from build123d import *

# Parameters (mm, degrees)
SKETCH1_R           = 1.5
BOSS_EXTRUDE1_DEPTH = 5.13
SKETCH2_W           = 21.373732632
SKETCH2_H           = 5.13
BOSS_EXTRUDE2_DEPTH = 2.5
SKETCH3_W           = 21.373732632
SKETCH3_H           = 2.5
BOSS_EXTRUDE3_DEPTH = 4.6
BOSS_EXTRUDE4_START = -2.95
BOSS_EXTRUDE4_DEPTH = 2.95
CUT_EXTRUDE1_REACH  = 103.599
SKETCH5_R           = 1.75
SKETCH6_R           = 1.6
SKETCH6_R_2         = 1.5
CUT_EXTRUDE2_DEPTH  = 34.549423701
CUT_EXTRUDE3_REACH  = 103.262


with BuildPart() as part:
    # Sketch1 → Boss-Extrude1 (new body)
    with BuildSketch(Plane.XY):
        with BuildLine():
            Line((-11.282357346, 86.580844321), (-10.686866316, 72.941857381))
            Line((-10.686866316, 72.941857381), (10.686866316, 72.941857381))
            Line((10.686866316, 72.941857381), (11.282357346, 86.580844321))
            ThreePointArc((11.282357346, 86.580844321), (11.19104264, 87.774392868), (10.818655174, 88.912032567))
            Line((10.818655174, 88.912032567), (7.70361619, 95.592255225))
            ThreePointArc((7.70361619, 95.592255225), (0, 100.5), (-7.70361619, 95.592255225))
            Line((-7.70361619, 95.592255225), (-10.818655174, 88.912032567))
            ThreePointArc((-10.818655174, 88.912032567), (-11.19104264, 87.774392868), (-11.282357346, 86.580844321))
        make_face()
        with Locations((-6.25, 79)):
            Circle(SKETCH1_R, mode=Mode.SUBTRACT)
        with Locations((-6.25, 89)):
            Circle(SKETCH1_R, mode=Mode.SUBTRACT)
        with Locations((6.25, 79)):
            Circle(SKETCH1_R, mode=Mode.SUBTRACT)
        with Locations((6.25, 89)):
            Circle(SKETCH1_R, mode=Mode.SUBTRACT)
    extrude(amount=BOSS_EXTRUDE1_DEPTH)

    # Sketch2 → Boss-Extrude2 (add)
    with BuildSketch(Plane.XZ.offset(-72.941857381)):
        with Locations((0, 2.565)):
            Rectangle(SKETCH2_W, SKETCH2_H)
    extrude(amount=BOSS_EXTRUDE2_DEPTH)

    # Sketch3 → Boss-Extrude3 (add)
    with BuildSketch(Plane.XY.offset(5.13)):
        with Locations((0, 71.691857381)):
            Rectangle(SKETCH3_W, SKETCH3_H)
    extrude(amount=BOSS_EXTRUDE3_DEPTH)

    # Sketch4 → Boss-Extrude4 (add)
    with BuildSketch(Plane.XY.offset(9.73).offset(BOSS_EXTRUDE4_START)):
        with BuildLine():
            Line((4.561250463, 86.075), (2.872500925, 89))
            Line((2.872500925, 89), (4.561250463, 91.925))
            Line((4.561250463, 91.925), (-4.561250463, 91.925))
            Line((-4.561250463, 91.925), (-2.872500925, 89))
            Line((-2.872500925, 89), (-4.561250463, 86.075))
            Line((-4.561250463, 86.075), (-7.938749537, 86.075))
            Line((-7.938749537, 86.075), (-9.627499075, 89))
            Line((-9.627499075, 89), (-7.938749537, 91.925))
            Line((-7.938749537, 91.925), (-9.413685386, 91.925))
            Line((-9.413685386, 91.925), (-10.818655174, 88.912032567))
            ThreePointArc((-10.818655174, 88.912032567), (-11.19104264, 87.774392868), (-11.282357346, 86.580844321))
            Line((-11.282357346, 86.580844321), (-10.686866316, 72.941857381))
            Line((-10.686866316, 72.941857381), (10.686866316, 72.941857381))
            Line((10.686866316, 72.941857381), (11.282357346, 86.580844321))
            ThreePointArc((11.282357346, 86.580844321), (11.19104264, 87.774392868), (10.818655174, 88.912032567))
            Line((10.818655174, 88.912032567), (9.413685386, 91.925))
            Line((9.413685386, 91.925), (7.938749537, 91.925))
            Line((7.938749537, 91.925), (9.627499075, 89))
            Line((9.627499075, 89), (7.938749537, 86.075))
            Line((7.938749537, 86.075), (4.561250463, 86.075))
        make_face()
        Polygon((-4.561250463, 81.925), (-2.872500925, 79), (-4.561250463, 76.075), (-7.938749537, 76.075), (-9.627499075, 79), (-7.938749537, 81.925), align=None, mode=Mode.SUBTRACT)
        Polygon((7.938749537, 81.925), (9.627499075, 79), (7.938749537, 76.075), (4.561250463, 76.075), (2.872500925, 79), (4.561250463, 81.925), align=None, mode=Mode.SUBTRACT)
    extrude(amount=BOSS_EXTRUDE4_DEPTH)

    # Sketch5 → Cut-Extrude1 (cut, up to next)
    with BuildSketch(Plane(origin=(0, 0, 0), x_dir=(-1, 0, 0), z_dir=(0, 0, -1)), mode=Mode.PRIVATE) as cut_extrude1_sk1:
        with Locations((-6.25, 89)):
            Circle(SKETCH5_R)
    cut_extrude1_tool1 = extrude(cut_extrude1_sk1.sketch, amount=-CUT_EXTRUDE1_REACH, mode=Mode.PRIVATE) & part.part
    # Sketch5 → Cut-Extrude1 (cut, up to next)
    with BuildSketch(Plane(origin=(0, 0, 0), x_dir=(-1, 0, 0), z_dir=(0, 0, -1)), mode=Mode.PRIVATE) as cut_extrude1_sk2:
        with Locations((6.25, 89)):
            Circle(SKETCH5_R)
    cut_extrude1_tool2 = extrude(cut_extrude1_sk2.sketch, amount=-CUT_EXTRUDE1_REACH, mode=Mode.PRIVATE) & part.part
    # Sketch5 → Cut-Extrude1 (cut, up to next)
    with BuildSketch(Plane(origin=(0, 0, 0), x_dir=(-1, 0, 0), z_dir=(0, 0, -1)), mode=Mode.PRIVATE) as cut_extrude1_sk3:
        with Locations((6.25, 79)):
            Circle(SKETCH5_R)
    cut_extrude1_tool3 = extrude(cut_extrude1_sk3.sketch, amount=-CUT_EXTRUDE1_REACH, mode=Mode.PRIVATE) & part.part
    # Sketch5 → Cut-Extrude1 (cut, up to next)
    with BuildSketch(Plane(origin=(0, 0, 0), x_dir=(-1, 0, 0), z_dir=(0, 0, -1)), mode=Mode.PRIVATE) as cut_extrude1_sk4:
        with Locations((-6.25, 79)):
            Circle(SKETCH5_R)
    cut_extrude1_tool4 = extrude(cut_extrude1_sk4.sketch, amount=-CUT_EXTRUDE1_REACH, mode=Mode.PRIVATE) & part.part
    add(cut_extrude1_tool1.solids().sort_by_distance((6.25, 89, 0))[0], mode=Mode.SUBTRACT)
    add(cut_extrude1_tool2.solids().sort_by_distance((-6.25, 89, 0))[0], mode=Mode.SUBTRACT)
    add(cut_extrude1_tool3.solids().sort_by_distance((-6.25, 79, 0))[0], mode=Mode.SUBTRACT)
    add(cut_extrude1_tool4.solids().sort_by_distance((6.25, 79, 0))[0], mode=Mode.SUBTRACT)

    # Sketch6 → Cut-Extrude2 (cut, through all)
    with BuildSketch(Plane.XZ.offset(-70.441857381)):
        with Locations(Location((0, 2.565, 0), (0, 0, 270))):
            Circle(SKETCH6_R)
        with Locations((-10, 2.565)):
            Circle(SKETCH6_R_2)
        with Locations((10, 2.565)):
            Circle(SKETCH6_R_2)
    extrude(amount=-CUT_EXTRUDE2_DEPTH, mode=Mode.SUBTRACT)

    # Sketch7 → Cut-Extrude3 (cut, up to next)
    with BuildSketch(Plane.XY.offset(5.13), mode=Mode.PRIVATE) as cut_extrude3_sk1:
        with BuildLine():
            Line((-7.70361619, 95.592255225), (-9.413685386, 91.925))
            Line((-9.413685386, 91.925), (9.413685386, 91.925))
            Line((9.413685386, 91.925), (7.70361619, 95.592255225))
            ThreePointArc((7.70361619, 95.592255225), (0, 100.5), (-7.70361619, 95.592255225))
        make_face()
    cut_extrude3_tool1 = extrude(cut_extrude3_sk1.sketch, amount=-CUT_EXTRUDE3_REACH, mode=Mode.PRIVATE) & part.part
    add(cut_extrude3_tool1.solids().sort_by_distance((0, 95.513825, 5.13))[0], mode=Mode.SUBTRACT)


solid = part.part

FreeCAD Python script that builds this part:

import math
import FreeCAD as App
import Part
import Sketcher
from FreeCAD import Vector
Q = App.Units.Quantity


def add_polygon(sketch, points):
    """Adds a closed chain of lines whose ends are joined by coincident constraints."""
    first, n = sketch.GeometryCount, len(points)
    for a, b in zip(points, points[1:] + points[:1]):
        sketch.addGeometry(Part.LineSegment(App.Vector(*a, 0), App.Vector(*b, 0)), False)
    for i in range(n):
        sketch.addConstraint(Sketcher.Constraint("Coincident", first + i, 2, first + (i + 1) % n, 1))

doc = App.newDocument("Part")
body = doc.addObject("PartDesign::Body", "Body")

# Sketch on XY plane
sketch1 = body.newObject("Sketcher::SketchObject", "Sketch")
sketch1.AttachmentSupport = (doc.getObject("XY_Plane"), [""])
sketch1.MapMode = "FlatFace"
sketch1.addGeometry([
    Part.LineSegment(Vector(-11.282357, 86.580844, 0), Vector(-10.686866, 72.941857, 0)),  # 0
    Part.LineSegment(Vector(-10.686866, 72.941857, 0), Vector(10.686866, 72.941857, 0)),  # 1
    Part.LineSegment(Vector(10.686866, 72.941857, 0), Vector(11.282357, 86.580844, 0)),  # 2
    Part.ArcOfCircle(Part.Circle(Vector(6.287116, 86.798941, 0), Vector(0, 0, 1), 5), math.radians(-2.5), math.radians(25)),  # 3
    Part.LineSegment(Vector(10.818655, 88.912033, 0), Vector(7.703616, 95.592255, 0)),  # 4
    Part.ArcOfCircle(Part.Circle(Vector(0, 92, 0), Vector(0, 0, 1), 8.5), math.radians(25), math.radians(155)),  # 5
    Part.LineSegment(Vector(-7.703616, 95.592255, 0), Vector(-10.818655, 88.912033, 0)),  # 6
    Part.ArcOfCircle(Part.Circle(Vector(-6.287116, 86.798941, 0), Vector(0, 0, 1), 5), math.radians(155), math.radians(182.5)),  # 7
    Part.Circle(Vector(-6.25, 79, 0), Vector(0, 0, 1), 1.5),  # 8
    Part.Circle(Vector(6.25, 79, 0), Vector(0, 0, 1), 1.5),  # 9
    Part.Circle(Vector(-6.25, 89, 0), Vector(0, 0, 1), 1.5),  # 10
    Part.Circle(Vector(6.25, 89, 0), Vector(0, 0, 1), 1.5),  # 11
], False)
sketch1.addConstraint([
    Sketcher.Constraint("Coincident", 0, 2, 1, 1),
    Sketcher.Constraint("Coincident", 1, 2, 2, 1),
    Sketcher.Constraint("Tangent", 2, 2, 3, 1),
    Sketcher.Constraint("Tangent", 3, 2, 4, 1),
    Sketcher.Constraint("Tangent", 4, 2, 5, 1),
    Sketcher.Constraint("Tangent", 5, 2, 6, 1),
    Sketcher.Constraint("Tangent", 6, 2, 7, 1),
    Sketcher.Constraint("Tangent", 7, 2, 0, 1),
    Sketcher.Constraint("Horizontal", 1),
    Sketcher.Constraint("Equal", 3, 7),
    Sketcher.Constraint("Equal", 8, 9),
    Sketcher.Constraint("Equal", 9, 10),
    Sketcher.Constraint("Equal", 10, 11),
    Sketcher.Constraint("Symmetric", 3, 3, 7, 3, -2),
    Sketcher.Constraint("Symmetric", 8, 3, 9, 3, -2),
    Sketcher.Constraint("Symmetric", 10, 3, 11, 3, -2),
    Sketcher.Constraint("PointOnObject", 5, 3, -2),
    Sketcher.Constraint("Horizontal", 2, 2, 7, 2),
    Sketcher.Constraint("Vertical", 8, 3, 10, 3),
    Sketcher.Constraint("Diameter", 8, 3.0),
    Sketcher.Constraint("Radius", 3, 5.0),
    Sketcher.Constraint("Radius", 5, 8.5),
    Sketcher.Constraint("Angle", 4, Q("115 deg")),
    Sketcher.Constraint("DistanceY", -1, 1, 5, 3, 92.0),
    Sketcher.Constraint("DistanceY", -1, 1, 8, 3, 79.0),
    Sketcher.Constraint("DistanceY", -1, 1, 10, 3, 89.0),
    Sketcher.Constraint("Angle", 0, Q("-87.5 deg")),
    Sketcher.Constraint("DistanceX", 8, 3, 9, 3, 12.5),
    Sketcher.Constraint("DistanceX", 3, 3, 4, 2, 1.4165),
    Sketcher.Constraint("Distance", 0, 13.651981),
])
pad1 = body.newObject("PartDesign::Pad", "Pad")
pad1.Profile = sketch1
pad1.Length = 5.13

# Sketch on XZ plane
sketch2 = body.newObject("Sketcher::SketchObject", "Sketch001")
sketch2.AttachmentSupport = (doc.getObject("XZ_Plane"), [""])
sketch2.MapMode = "FlatFace"
sketch2.AttachmentOffset = App.Placement(Vector(0, 0, -72.941857), App.Rotation())
add_polygon(sketch2, [(-10.686866, 5.13), (-10.686866, 0), (10.686866, 0), (10.686866, 5.13)])  # lines 0-3
sketch2.addConstraint([
    Sketcher.Constraint("Vertical", 0),
    Sketcher.Constraint("Horizontal", 1),
    Sketcher.Constraint("Vertical", 2),
    Sketcher.Constraint("Horizontal", 3),
    Sketcher.Constraint("Symmetric", 0, 2, 1, 2, -1, 1),
    Sketcher.Constraint("DistanceY", 0, 2, 0, 1, 5.13),
    Sketcher.Constraint("DistanceX", 1, 1, 1, 2, 21.373733),
])
pad2 = body.newObject("PartDesign::Pad", "Pad001")
pad2.Profile = sketch2
pad2.Length = 2.5

# Sketch on XY plane
sketch3 = body.newObject("Sketcher::SketchObject", "Sketch002")
sketch3.AttachmentSupport = (doc.getObject("XY_Plane"), [""])
sketch3.MapMode = "FlatFace"
sketch3.AttachmentOffset = App.Placement(Vector(0, 0, 5.13), App.Rotation())
add_polygon(sketch3, [(-10.686866, 72.941857), (-10.686866, 70.441857), (10.686866, 70.441857), (10.686866, 72.941857)])  # lines 0-3
sketch3.addConstraint([
    Sketcher.Constraint("Vertical", 0),
    Sketcher.Constraint("Horizontal", 1),
    Sketcher.Constraint("Vertical", 2),
    Sketcher.Constraint("Horizontal", 3),
    Sketcher.Constraint("DistanceY", 0, 2, 0, 1, 2.5),
    Sketcher.Constraint("DistanceX", 1, 1, 1, 2, 21.373733),
    Sketcher.Constraint("DistanceX", 0, 2, -1, 1, 10.686866),
    Sketcher.Constraint("DistanceY", -1, 1, 0, 2, 70.441857),
])
pad3 = body.newObject("PartDesign::Pad", "Pad002")
pad3.Profile = sketch3
pad3.Length = 4.6

# Sketch on XY plane
sketch4 = body.newObject("Sketcher::SketchObject", "Sketch003")
sketch4.AttachmentSupport = (doc.getObject("XY_Plane"), [""])
sketch4.MapMode = "FlatFace"
sketch4.AttachmentOffset = App.Placement(Vector(0, 0, 6.78), App.Rotation())
sketch4.addGeometry(Part.LineSegment(Vector(4.56125, 86.075, 0), Vector(2.872501, 89, 0)), False)  # 0
sketch4.addGeometry(Part.LineSegment(Vector(2.872501, 89, 0), Vector(4.56125, 91.925, 0)), False)  # 1
sketch4.addGeometry(Part.LineSegment(Vector(4.56125, 91.925, 0), Vector(-4.56125, 91.925, 0)), False)  # 2
sketch4.addGeometry(Part.LineSegment(Vector(-4.56125, 91.925, 0), Vector(-2.872501, 89, 0)), False)  # 3
sketch4.addGeometry(Part.LineSegment(Vector(-2.872501, 89, 0), Vector(-4.56125, 86.075, 0)), False)  # 4
sketch4.addGeometry(Part.LineSegment(Vector(-4.56125, 86.075, 0), Vector(-7.93875, 86.075, 0)), False)  # 5
sketch4.addGeometry(Part.LineSegment(Vector(-7.93875, 86.075, 0), Vector(-9.627499, 89, 0)), False)  # 6
sketch4.addGeometry(Part.LineSegment(Vector(-9.627499, 89, 0), Vector(-7.93875, 91.925, 0)), False)  # 7
sketch4.addGeometry(Part.LineSegment(Vector(-7.93875, 91.925, 0), Vector(-9.413685, 91.925, 0)), False)  # 8
sketch4.addGeometry(Part.LineSegment(Vector(-9.413685, 91.925, 0), Vector(-10.818655, 88.912033, 0)), False)  # 9
sketch4.addGeometry(Part.ArcOfCircle(Part.Circle(Vector(-6.287116, 86.798941, 0), Vector(0, 0, 1), 5), math.radians(155), math.radians(182.5)), False)  # 10
sketch4.addGeometry(Part.LineSegment(Vector(-11.282357, 86.580844, 0), Vector(-10.686866, 72.941857, 0)), False)  # 11
sketch4.addGeometry(Part.LineSegment(Vector(-10.686866, 72.941857, 0), Vector(10.686866, 72.941857, 0)), False)  # 12
sketch4.addGeometry(Part.LineSegment(Vector(10.686866, 72.941857, 0), Vector(11.282357, 86.580844, 0)), False)  # 13
sketch4.addGeometry(Part.ArcOfCircle(Part.Circle(Vector(6.287116, 86.798941, 0), Vector(0, 0, 1), 5), math.radians(-2.5), math.radians(25)), False)  # 14
sketch4.addGeometry(Part.LineSegment(Vector(10.818655, 88.912033, 0), Vector(9.413685, 91.925, 0)), False)  # 15
sketch4.addGeometry(Part.LineSegment(Vector(9.413685, 91.925, 0), Vector(7.93875, 91.925, 0)), False)  # 16
sketch4.addGeometry(Part.LineSegment(Vector(7.93875, 91.925, 0), Vector(9.627499, 89, 0)), False)  # 17
sketch4.addGeometry(Part.LineSegment(Vector(9.627499, 89, 0), Vector(7.93875, 86.075, 0)), False)  # 18
sketch4.addGeometry(Part.LineSegment(Vector(7.93875, 86.075, 0), Vector(4.56125, 86.075, 0)), False)  # 19
add_polygon(sketch4, [(-7.93875, 81.925), (-4.56125, 81.925), (-2.872501, 79), (-4.56125, 76.075), (-7.93875, 76.075), (-9.627499, 79)])  # lines 20-25
add_polygon(sketch4, [(4.56125, 81.925), (7.93875, 81.925), (9.627499, 79), (7.93875, 76.075), (4.56125, 76.075), (2.872501, 79)])  # lines 26-31
sketch4.addConstraint([
    Sketcher.Constraint("Coincident", 0, 2, 1, 1),
    Sketcher.Constraint("Coincident", 1, 2, 2, 1),
    Sketcher.Constraint("Coincident", 2, 2, 3, 1),
    Sketcher.Constraint("Coincident", 3, 2, 4, 1),
    Sketcher.Constraint("Coincident", 4, 2, 5, 1),
    Sketcher.Constraint("Coincident", 5, 2, 6, 1),
    Sketcher.Constraint("Coincident", 6, 2, 7, 1),
    Sketcher.Constraint("Coincident", 7, 2, 8, 1),
    Sketcher.Constraint("Coincident", 8, 2, 9, 1),
    Sketcher.Constraint("Tangent", 9, 2, 10, 1),
    Sketcher.Constraint("Tangent", 10, 2, 11, 1),
    Sketcher.Constraint("Coincident", 11, 2, 12, 1),
    Sketcher.Constraint("Coincident", 12, 2, 13, 1),
    Sketcher.Constraint("Tangent", 13, 2, 14, 1),
    Sketcher.Constraint("Tangent", 14, 2, 15, 1),
    Sketcher.Constraint("Coincident", 15, 2, 16, 1),
    Sketcher.Constraint("Coincident", 16, 2, 17, 1),
    Sketcher.Constraint("Coincident", 17, 2, 18, 1),
    Sketcher.Constraint("Coincident", 18, 2, 19, 1),
    Sketcher.Constraint("Coincident", 19, 2, 0, 1),
    Sketcher.Constraint("Horizontal", 2),
    Sketcher.Constraint("Horizontal", 5),
    Sketcher.Constraint("Horizontal", 8),
    Sketcher.Constraint("Horizontal", 12),
    Sketcher.Constraint("Horizontal", 16),
    Sketcher.Constraint("Horizontal", 19),
    Sketcher.Constraint("Horizontal", 20),
    Sketcher.Constraint("Horizontal", 23),
    Sketcher.Constraint("Horizontal", 26),
    Sketcher.Constraint("Horizontal", 29),
    Sketcher.Constraint("Equal", 10, 14),
    Sketcher.Constraint("Symmetric", 10, 3, 14, 3, -2),
    Sketcher.Constraint("Symmetric", 0, 2, 3, 2, -2),
    Sketcher.Constraint("Symmetric", 8, 2, 15, 2, -2),
    Sketcher.Constraint("Symmetric", 6, 2, 17, 2, -2),
    Sketcher.Constraint("Symmetric", 5, 2, 18, 2, -2),
    Sketcher.Constraint("Symmetric", 25, 2, 26, 2, -2),
    Sketcher.Constraint("Symmetric", 24, 2, 27, 2, -2),
    Sketcher.Constraint("Symmetric", 23, 2, 28, 2, -2),
    Sketcher.Constraint("Symmetric", 21, 2, 30, 2, -2),
    Sketcher.Constraint("Parallel", 0, 3),
    Sketcher.Constraint("Parallel", 1, 4),
    Sketcher.Constraint("Parallel", 3, 6),
    Sketcher.Constraint("Parallel", 4, 7),
    Sketcher.Constraint("Parallel", 6, 17),
    Sketcher.Constraint("Parallel", 7, 18),
    Sketcher.Constraint("Parallel", 17, 21),
    Sketcher.Constraint("Parallel", 18, 22),
    Sketcher.Constraint("Parallel", 21, 24),
    Sketcher.Constraint("Parallel", 22, 25),
    Sketcher.Constraint("Parallel", 27, 30),
    Sketcher.Constraint("Parallel", 28, 31),
    Sketcher.Constraint("Horizontal", 3, 2, 6, 2),
    Sketcher.Constraint("Horizontal", 2, 2, 7, 2),
    Sketcher.Constraint("Horizontal", 10, 2, 13, 2),
    Sketcher.Constraint("Horizontal", 21, 2, 24, 2),
    Sketcher.Constraint("Vertical", 2, 2, 4, 2),
    Sketcher.Constraint("Vertical", 4, 2, 20, 2),
    Sketcher.Constraint("Vertical", 3, 2, 21, 2),
    Sketcher.Constraint("Vertical", 20, 2, 22, 2),
    Sketcher.Constraint("Vertical", 7, 2, 23, 2),
    Sketcher.Constraint("Radius", 10, 5.0),
    Sketcher.Constraint("Angle", 0, Q("120 deg")),
    Sketcher.Constraint("Angle", 9, Q("-115 deg")),
    Sketcher.Constraint("DistanceY", -1, 1, 0, 2, 89.0),
    Sketcher.Constraint("DistanceY", -1, 1, 21, 2, 79.0),
    Sketcher.Constraint("Angle", 11, Q("-87.5 deg")),
    Sketcher.Constraint("DistanceY", 4, 2, 2, 2, 5.85),
    Sketcher.Constraint("DistanceX", 2, 2, 2, 1, 9.122501),
    Sketcher.Constraint("DistanceX", 5, 2, 5, 1, 3.377499),
    Sketcher.Constraint("Distance", 9, 3.324442),
    Sketcher.Constraint("Distance", 11, 13.651981),
    Sketcher.Constraint("DistanceX", 8, 2, 8, 1, 1.474936),
])
pad4 = body.newObject("PartDesign::Pad", "Pad003")
pad4.Profile = sketch4
pad4.Length = 2.95

# Sketch on XY plane
sketch5 = body.newObject("Sketcher::SketchObject", "Sketch004")
sketch5.AttachmentSupport = (doc.getObject("XY_Plane"), [""])
sketch5.MapMode = "FlatFace"
sketch5.addGeometry(Part.Circle(Vector(6.25, 89, 0), Vector(0, 0, 1), 1.75), False)
sketch5.addConstraint([
    Sketcher.Constraint("Diameter", 0, 3.5),
    Sketcher.Constraint("DistanceY", -1, 1, 0, 3, 89.0),
    Sketcher.Constraint("DistanceX", -1, 1, 0, 3, 6.25),
])
pocket1 = body.newObject("PartDesign::Pocket", "Pocket")
pocket1.Profile = sketch5
pocket1.Length = 5.13
pocket1.Reversed = True

# Sketch on XY plane
sketch6 = body.newObject("Sketcher::SketchObject", "Sketch005")
sketch6.AttachmentSupport = (doc.getObject("XY_Plane"), [""])
sketch6.MapMode = "FlatFace"
sketch6.addGeometry(Part.Circle(Vector(-6.25, 89, 0), Vector(0, 0, 1), 1.75), False)
sketch6.addConstraint([
    Sketcher.Constraint("Diameter", 0, 3.5),
    Sketcher.Constraint("DistanceY", -1, 1, 0, 3, 89.0),
    Sketcher.Constraint("DistanceX", 0, 3, -1, 1, 6.25),
])
pocket2 = body.newObject("PartDesign::Pocket", "Pocket001")
pocket2.Profile = sketch6
pocket2.Length = 5.13
pocket2.Reversed = True

# Sketch on XY plane
sketch7 = body.newObject("Sketcher::SketchObject", "Sketch006")
sketch7.AttachmentSupport = (doc.getObject("XY_Plane"), [""])
sketch7.MapMode = "FlatFace"
sketch7.addGeometry(Part.Circle(Vector(-6.25, 79, 0), Vector(0, 0, 1), 1.75), False)
sketch7.addConstraint([
    Sketcher.Constraint("Diameter", 0, 3.5),
    Sketcher.Constraint("DistanceY", -1, 1, 0, 3, 79.0),
    Sketcher.Constraint("DistanceX", 0, 3, -1, 1, 6.25),
])
pocket3 = body.newObject("PartDesign::Pocket", "Pocket002")
pocket3.Profile = sketch7
pocket3.Length = 5.13
pocket3.Reversed = True

# Sketch on XY plane
sketch8 = body.newObject("Sketcher::SketchObject", "Sketch007")
sketch8.AttachmentSupport = (doc.getObject("XY_Plane"), [""])
sketch8.MapMode = "FlatFace"
sketch8.addGeometry(Part.Circle(Vector(6.25, 79, 0), Vector(0, 0, 1), 1.75), False)
sketch8.addConstraint([
    Sketcher.Constraint("Diameter", 0, 3.5),
    Sketcher.Constraint("DistanceY", -1, 1, 0, 3, 79.0),
    Sketcher.Constraint("DistanceX", -1, 1, 0, 3, 6.25),
])
pocket4 = body.newObject("PartDesign::Pocket", "Pocket003")
pocket4.Profile = sketch8
pocket4.Length = 5.13
pocket4.Reversed = True

# Sketch on XZ plane
sketch9 = body.newObject("Sketcher::SketchObject", "Sketch008")
sketch9.AttachmentSupport = (doc.getObject("XZ_Plane"), [""])
sketch9.MapMode = "FlatFace"
sketch9.AttachmentOffset = App.Placement(Vector(0, 0, -70.441857), App.Rotation())
sketch9.addGeometry([
    Part.Circle(Vector(0, 2.565, 0), Vector(0, 0, 1), 1.6),
    Part.Circle(Vector(-10, 2.565, 0), Vector(0, 0, 1), 1.5),
    Part.Circle(Vector(10, 2.565, 0), Vector(0, 0, 1), 1.5),
], False)
sketch9.addConstraint([
    Sketcher.Constraint("Equal", 1, 2),
    Sketcher.Constraint("Symmetric", 1, 3, 2, 3, -2),
    Sketcher.Constraint("PointOnObject", 0, 3, -2),
    Sketcher.Constraint("Horizontal", 0, 3, 1, 3),
    Sketcher.Constraint("Diameter", 1, 3.0),
    Sketcher.Constraint("Diameter", 0, 3.2),
    Sketcher.Constraint("DistanceX", 1, 3, -1, 1, 10.0),
    Sketcher.Constraint("DistanceY", -1, 1, 0, 3, 2.565),
])
pocket5 = body.newObject("PartDesign::Pocket", "Pocket004")
pocket5.Profile = sketch9
pocket5.Type = "ThroughAll"

# Sketch on XY plane
sketch10 = body.newObject("Sketcher::SketchObject", "Sketch009")
sketch10.AttachmentSupport = (doc.getObject("XY_Plane"), [""])
sketch10.MapMode = "FlatFace"
sketch10.AttachmentOffset = App.Placement(Vector(0, 0, 5.13), App.Rotation())
sketch10.addGeometry([
    Part.LineSegment(Vector(-7.703616, 95.592255, 0), Vector(-9.413685, 91.925, 0)),
    Part.LineSegment(Vector(-9.413685, 91.925, 0), Vector(9.413685, 91.925, 0)),
    Part.LineSegment(Vector(9.413685, 91.925, 0), Vector(7.703616, 95.592255, 0)),
    Part.ArcOfCircle(Part.Circle(Vector(0, 92, 0), Vector(0, 0, 1), 8.5), math.radians(25), math.radians(155)),
], False)
sketch10.addConstraint([
    Sketcher.Constraint("Coincident", 0, 2, 1, 1),
    Sketcher.Constraint("Coincident", 1, 2, 2, 1),
    Sketcher.Constraint("Tangent", 2, 2, 3, 1),
    Sketcher.Constraint("Tangent", 3, 2, 0, 1),
    Sketcher.Constraint("Horizontal", 1),
    Sketcher.Constraint("Symmetric", 2, 2, 3, 2, -2),
    Sketcher.Constraint("Radius", 3, 8.5),
    Sketcher.Constraint("Angle", 0, Q("-115 deg")),
    Sketcher.Constraint("DistanceY", -1, 1, 3, 3, 92.0),
    Sketcher.Constraint("DistanceY", -1, 1, 0, 2, 91.925),
])
pocket6 = body.newObject("PartDesign::Pocket", "Pocket005")
pocket6.Profile = sketch10
pocket6.Length = 5.13

doc.recompute()
